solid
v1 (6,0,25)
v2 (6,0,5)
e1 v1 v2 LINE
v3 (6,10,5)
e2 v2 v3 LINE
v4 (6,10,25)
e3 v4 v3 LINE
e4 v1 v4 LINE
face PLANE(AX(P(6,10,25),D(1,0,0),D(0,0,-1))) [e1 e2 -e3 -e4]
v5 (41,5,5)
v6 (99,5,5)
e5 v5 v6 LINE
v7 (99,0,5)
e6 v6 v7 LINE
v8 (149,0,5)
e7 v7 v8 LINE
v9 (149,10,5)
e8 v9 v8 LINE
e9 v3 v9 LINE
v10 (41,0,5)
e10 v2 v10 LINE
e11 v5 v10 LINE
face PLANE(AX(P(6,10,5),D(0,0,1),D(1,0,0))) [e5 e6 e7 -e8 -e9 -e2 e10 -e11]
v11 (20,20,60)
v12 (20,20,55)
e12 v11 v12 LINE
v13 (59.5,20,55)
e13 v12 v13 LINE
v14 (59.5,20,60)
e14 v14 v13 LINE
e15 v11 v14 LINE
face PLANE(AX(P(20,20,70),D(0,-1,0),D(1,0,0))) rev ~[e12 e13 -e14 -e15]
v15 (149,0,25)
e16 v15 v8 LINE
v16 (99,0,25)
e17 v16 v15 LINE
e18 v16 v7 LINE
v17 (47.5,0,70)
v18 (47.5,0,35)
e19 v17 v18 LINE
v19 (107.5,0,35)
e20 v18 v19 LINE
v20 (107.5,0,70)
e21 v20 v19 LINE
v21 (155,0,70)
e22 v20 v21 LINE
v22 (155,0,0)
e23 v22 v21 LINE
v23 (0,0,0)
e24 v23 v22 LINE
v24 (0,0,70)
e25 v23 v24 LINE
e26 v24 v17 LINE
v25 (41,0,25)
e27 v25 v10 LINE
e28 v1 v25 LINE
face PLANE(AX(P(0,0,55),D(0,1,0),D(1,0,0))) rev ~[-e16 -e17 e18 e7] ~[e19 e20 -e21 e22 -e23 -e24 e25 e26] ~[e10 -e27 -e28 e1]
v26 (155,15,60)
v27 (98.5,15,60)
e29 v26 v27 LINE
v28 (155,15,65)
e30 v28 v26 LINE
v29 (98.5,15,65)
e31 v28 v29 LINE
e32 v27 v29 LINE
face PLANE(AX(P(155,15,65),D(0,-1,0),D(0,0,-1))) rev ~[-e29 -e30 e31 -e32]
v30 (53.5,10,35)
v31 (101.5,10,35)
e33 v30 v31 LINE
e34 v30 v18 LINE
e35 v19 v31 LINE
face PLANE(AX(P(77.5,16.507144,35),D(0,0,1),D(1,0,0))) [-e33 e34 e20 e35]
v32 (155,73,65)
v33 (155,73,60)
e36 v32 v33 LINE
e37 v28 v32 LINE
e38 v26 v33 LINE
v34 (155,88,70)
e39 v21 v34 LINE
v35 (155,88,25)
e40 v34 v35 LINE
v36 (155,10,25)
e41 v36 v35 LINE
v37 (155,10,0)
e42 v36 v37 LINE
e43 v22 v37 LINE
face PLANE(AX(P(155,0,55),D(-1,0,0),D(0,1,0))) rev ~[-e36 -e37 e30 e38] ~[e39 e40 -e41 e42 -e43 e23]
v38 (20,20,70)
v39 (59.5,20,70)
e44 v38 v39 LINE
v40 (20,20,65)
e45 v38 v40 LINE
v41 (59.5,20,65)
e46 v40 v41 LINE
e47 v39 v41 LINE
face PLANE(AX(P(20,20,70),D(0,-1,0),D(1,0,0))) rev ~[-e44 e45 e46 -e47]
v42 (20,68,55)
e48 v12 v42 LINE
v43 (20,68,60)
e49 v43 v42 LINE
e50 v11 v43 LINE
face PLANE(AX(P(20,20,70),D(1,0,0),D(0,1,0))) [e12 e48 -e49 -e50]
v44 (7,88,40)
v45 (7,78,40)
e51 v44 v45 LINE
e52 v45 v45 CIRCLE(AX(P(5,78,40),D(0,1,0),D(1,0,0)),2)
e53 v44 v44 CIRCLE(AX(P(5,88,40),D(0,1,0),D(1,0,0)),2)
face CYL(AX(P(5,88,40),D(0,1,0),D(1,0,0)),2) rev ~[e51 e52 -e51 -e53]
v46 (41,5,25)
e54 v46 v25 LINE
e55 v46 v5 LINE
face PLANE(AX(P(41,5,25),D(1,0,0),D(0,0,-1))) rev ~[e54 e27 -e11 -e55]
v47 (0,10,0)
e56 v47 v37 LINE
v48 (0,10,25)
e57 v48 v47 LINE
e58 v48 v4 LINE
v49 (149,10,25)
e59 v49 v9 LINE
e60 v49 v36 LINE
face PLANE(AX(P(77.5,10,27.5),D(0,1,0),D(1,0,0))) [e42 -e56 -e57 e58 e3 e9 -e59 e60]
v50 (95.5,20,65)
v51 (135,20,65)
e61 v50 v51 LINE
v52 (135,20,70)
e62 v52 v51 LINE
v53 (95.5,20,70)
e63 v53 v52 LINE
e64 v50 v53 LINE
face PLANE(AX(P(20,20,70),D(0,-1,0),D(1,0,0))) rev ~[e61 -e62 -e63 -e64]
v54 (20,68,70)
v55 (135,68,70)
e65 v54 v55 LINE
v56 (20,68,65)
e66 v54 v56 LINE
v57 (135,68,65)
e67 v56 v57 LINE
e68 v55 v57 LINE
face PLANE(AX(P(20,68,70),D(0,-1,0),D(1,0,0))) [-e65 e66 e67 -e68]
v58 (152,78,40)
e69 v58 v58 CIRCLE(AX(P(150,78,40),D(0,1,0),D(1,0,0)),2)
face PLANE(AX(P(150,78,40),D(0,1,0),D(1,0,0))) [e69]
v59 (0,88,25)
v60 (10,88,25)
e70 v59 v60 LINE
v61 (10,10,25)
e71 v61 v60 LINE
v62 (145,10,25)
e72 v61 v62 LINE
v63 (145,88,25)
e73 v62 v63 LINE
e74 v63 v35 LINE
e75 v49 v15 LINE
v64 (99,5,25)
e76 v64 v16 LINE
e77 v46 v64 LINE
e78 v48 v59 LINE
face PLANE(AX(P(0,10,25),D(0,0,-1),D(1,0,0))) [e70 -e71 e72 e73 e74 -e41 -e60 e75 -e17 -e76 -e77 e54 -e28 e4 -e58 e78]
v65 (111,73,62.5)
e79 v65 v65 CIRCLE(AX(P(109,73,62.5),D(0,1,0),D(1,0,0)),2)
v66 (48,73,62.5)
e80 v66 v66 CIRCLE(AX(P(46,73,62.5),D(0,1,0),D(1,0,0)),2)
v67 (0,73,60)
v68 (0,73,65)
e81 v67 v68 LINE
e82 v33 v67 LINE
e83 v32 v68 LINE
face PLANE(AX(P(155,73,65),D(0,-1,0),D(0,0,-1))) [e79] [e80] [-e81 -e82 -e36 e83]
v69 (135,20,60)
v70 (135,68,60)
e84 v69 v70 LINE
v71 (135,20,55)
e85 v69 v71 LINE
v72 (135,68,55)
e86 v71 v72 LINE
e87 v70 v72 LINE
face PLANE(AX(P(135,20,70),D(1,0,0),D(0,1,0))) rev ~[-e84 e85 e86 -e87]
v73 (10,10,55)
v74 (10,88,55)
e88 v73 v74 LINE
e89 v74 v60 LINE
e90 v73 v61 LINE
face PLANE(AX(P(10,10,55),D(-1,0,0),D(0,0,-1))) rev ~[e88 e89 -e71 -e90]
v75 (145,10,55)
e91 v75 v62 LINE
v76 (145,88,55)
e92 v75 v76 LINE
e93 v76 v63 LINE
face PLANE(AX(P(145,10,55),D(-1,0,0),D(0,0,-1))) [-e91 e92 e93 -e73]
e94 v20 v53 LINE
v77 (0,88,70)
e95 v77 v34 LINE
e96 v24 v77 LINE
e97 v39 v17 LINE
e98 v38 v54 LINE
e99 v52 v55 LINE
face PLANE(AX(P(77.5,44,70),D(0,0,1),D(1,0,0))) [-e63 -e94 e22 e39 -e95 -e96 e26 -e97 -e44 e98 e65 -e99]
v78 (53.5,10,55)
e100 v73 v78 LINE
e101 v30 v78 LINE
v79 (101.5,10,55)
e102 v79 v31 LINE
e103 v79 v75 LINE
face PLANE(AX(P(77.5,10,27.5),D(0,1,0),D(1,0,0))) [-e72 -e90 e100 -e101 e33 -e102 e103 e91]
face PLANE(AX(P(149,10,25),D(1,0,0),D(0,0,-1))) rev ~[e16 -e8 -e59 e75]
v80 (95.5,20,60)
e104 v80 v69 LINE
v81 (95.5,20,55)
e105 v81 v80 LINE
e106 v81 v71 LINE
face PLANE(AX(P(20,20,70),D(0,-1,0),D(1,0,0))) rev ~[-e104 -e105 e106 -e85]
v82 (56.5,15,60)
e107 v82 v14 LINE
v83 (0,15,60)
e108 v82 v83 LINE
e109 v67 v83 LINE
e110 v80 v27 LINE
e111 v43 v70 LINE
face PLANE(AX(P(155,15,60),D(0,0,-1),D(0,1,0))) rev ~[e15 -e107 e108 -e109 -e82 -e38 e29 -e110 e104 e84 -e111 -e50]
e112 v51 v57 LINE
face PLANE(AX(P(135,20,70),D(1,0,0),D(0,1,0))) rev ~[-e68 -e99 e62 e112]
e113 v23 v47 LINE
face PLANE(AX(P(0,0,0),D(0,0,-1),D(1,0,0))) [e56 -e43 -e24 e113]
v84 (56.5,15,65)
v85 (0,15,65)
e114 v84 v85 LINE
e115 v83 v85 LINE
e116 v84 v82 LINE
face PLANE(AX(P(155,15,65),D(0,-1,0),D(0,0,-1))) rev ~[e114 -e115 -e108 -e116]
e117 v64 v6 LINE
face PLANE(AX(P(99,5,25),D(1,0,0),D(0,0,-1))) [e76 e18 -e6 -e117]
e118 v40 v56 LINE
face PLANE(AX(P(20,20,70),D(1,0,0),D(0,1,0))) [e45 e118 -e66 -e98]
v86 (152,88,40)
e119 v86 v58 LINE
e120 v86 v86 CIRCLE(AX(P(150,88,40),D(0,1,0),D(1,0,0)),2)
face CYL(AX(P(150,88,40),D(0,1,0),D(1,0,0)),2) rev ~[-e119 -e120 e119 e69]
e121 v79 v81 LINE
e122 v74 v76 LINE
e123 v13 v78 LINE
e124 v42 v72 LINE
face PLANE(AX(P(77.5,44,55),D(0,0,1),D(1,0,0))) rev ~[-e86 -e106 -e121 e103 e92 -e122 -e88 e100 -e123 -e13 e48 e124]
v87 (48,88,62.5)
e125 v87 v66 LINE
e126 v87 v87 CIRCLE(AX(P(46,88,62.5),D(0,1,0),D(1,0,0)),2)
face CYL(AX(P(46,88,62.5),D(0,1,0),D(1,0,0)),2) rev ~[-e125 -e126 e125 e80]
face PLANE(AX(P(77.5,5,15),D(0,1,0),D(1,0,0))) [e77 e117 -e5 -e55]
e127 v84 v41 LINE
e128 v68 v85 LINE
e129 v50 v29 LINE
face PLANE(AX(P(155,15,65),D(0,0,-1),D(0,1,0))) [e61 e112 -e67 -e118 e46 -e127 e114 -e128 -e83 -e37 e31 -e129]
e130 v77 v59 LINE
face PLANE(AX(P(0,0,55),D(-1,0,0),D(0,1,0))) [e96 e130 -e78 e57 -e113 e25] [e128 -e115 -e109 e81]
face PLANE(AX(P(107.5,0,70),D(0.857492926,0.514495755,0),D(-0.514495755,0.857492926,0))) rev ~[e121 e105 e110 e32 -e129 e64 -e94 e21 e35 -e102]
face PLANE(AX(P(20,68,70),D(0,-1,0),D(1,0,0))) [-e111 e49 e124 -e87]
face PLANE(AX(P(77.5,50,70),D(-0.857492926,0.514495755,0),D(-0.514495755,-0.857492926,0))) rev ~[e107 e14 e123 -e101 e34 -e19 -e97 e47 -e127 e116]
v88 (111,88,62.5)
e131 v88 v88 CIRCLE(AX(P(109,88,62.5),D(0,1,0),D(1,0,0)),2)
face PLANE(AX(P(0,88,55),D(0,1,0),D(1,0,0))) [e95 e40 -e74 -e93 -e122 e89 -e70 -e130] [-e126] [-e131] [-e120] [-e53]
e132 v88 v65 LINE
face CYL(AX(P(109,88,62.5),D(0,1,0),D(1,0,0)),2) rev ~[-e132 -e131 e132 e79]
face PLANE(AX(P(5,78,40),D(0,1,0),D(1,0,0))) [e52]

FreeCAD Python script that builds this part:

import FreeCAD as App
import Part
import Sketcher
Q = App.Units.Quantity

doc = App.newDocument("Part")
body = doc.addObject("PartDesign::Body", "Body")

# Sketch on XZ plane
sketch1 = doc.addObject("Sketcher::SketchObject", "Sketch")
body.addObject(sketch1)
sketch1.AttachmentSupport = (doc.XZ_Plane, [""])
sketch1.MapMode = "FlatFace"
sketch1.addGeometry([
    Part.LineSegment(App.Vector(0, 0, 0), App.Vector(0, 55, 0)),
    Part.LineSegment(App.Vector(0, 55, 0), App.Vector(155, 55, 0)),
    Part.LineSegment(App.Vector(155, 55, 0), App.Vector(155, 0, 0)),
    Part.LineSegment(App.Vector(155, 0, 0), App.Vector(0, 0, 0)),
], False)
sketch1.addConstraint([
    Sketcher.Constraint("Coincident", 0, 2, 1, 1),
    Sketcher.Constraint("Coincident", 1, 2, 2, 1),
    Sketcher.Constraint("Coincident", 2, 2, 3, 1),
    Sketcher.Constraint("Coincident", 3, 2, 0, 1),
    Sketcher.Constraint("Vertical", 0),
    Sketcher.Constraint("Horizontal", 1),
    Sketcher.Constraint("Vertical", 2),
    Sketcher.Constraint("Horizontal", 3),
    Sketcher.Constraint("Coincident", 3, 2, -1, 1),
    Sketcher.Constraint("DistanceX", 1, 1, 1, 2, Q("155 mm")),
    Sketcher.Constraint("DistanceY", 0, 1, 0, 2, Q("55 mm")),
])
pad1 = doc.addObject("PartDesign::Pad", "Pad")
body.addObject(pad1)
pad1.Profile = sketch1
pad1.Length = 10
pad1.Reversed = True

# Sketch on XZ plane
sketch2 = doc.addObject("Sketcher::SketchObject", "Sketch001")
body.addObject(sketch2)
sketch2.AttachmentSupport = (doc.XZ_Plane, [""])
sketch2.MapMode = "FlatFace"
sketch2.AttachmentOffset = App.Placement(App.Vector(0, 0, -10), App.Rotation())
sketch2.addGeometry([
    Part.LineSegment(App.Vector(6, 5, 0), App.Vector(6, 25, 0)),
    Part.LineSegment(App.Vector(6, 25, 0), App.Vector(149, 25, 0)),
    Part.LineSegment(App.Vector(149, 25, 0), App.Vector(149, 5, 0)),
    Part.LineSegment(App.Vector(149, 5, 0), App.Vector(6, 5, 0)),
], False)
sketch2.addConstraint([
    Sketcher.Constraint("Coincident", 0, 2, 1, 1),
    Sketcher.Constraint("Coincident", 1, 2, 2, 1),
    Sketcher.Constraint("Coincident", 2, 2, 3, 1),
    Sketcher.Constraint("Coincident", 3, 2, 0, 1),
    Sketcher.Constraint("Vertical", 0),
    Sketcher.Constraint("Horizontal", 1),
    Sketcher.Constraint("Vertical", 2),
    Sketcher.Constraint("Horizontal", 3),
    Sketcher.Constraint("DistanceX", 1, 1, 1, 2, Q("143 mm")),
    Sketcher.Constraint("DistanceY", 0, 1, 0, 2, Q("20 mm")),
    Sketcher.Constraint("DistanceX", -1, 1, 0, 2, Q("6 mm")),
    Sketcher.Constraint("DistanceY", -1, 1, 0, 2, Q("25 mm")),
])
pocket1 = doc.addObject("PartDesign::Pocket", "Pocket")
body.addObject(pocket1)
pocket1.Profile = sketch2
pocket1.Length = 5
pocket1.Reversed = True

# Sketch on XZ plane
sketch3 = doc.addObject("Sketcher::SketchObject", "Sketch002")
body.addObject(sketch3)
sketch3.AttachmentSupport = (doc.XZ_Plane, [""])
sketch3.MapMode = "FlatFace"
sketch3.AttachmentOffset = App.Placement(App.Vector(0, 0, -10), App.Rotation())
sketch3.addGeometry([
    Part.LineSegment(App.Vector(0, 25, 0), App.Vector(0, 55, 0)),  # 0
    Part.LineSegment(App.Vector(0, 55, 0), App.Vector(10, 55, 0)),  # 1
    Part.LineSegment(App.Vector(10, 55, 0), App.Vector(10, 25, 0)),  # 2
    Part.LineSegment(App.Vector(10, 25, 0), App.Vector(0, 25, 0)),  # 3
    Part.LineSegment(App.Vector(145, 25, 0), App.Vector(145, 55, 0)),  # 4
    Part.LineSegment(App.Vector(145, 55, 0), App.Vector(155, 55, 0)),  # 5
    Part.LineSegment(App.Vector(155, 55, 0), App.Vector(155, 25, 0)),  # 6
    Part.LineSegment(App.Vector(155, 25, 0), App.Vector(145, 25, 0)),  # 7
], False)
sketch3.addConstraint([
    Sketcher.Constraint("Coincident", 0, 2, 1, 1),
    Sketcher.Constraint("Coincident", 1, 2, 2, 1),
    Sketcher.Constraint("Coincident", 2, 2, 3, 1),
    Sketcher.Constraint("Coincident", 3, 2, 0, 1),
    Sketcher.Constraint("Coincident", 4, 2, 5, 1),
    Sketcher.Constraint("Coincident", 5, 2, 6, 1),
    Sketcher.Constraint("Coincident", 6, 2, 7, 1),
    Sketcher.Constraint("Coincident", 7, 2, 4, 1),
    Sketcher.Constraint("Vertical", 0),
    Sketcher.Constraint("Horizontal", 1),
    Sketcher.Constraint("Vertical", 2),
    Sketcher.Constraint("Horizontal", 3),
    Sketcher.Constraint("Vertical", 4),
    Sketcher.Constraint("Horizontal", 5),
    Sketcher.Constraint("Vertical", 6),
    Sketcher.Constraint("Horizontal", 7),
    Sketcher.Constraint("PointOnObject", 0, 2, -2),
    Sketcher.Constraint("Horizontal", 1, 2, 4, 2),
    Sketcher.Constraint("Horizontal", 3, 2, 6, 2),
    Sketcher.Constraint("Equal", 3, 5),
    Sketcher.Constraint("DistanceX", 1, 1, 1, 2, Q("10 mm")),
    Sketcher.Constraint("DistanceY", 0, 1, 0, 2, Q("30 mm")),
    Sketcher.Constraint("DistanceY", -1, 1, 0, 2, Q("55 mm")),
    Sketcher.Constraint("DistanceX", -1, 1, 4, 2, Q("145 mm")),
])
pad2 = doc.addObject("PartDesign::Pad", "Pad001")
body.addObject(pad2)
pad2.Profile = sketch3
pad2.Length = 78
pad2.Reversed = True

# Sketch on XZ plane
sketch4 = doc.addObject("Sketcher::SketchObject", "Sketch003")
body.addObject(sketch4)
sketch4.AttachmentSupport = (doc.XZ_Plane, [""])
sketch4.MapMode = "FlatFace"
sketch4.AttachmentOffset = App.Placement(App.Vector(0, 0, -5), App.Rotation())
sketch4.addGeometry([
    Part.LineSegment(App.Vector(6, 5, 0), App.Vector(6, 25, 0)),  # 0
    Part.LineSegment(App.Vector(6, 25, 0), App.Vector(41, 25, 0)),  # 1
    Part.LineSegment(App.Vector(41, 25, 0), App.Vector(41, 5, 0)),  # 2
    Part.LineSegment(App.Vector(41, 5, 0), App.Vector(6, 5, 0)),  # 3
    Part.LineSegment(App.Vector(99, 5, 0), App.Vector(99, 25, 0)),  # 4
    Part.LineSegment(App.Vector(99, 25, 0), App.Vector(149, 25, 0)),  # 5
    Part.LineSegment(App.Vector(149, 25, 0), App.Vector(149, 5, 0)),  # 6
    Part.LineSegment(App.Vector(149, 5, 0), App.Vector(99, 5, 0)),  # 7
], False)
sketch4.addConstraint([
    Sketcher.Constraint("Coincident", 0, 2, 1, 1),
    Sketcher.Constraint("Coincident", 1, 2, 2, 1),
    Sketcher.Constraint("Coincident", 2, 2, 3, 1),
    Sketcher.Constraint("Coincident", 3, 2, 0, 1),
    Sketcher.Constraint("Coincident", 4, 2, 5, 1),
    Sketcher.Constraint("Coincident", 5, 2, 6, 1),
    Sketcher.Constraint("Coincident", 6, 2, 7, 1),
    Sketcher.Constraint("Coincident", 7, 2, 4, 1),
    Sketcher.Constraint("Vertical", 0),
    Sketcher.Constraint("Horizontal", 1),
    Sketcher.Constraint("Vertical", 2),
    Sketcher.Constraint("Horizontal", 3),
    Sketcher.Constraint("Vertical", 4),
    Sketcher.Constraint("Horizontal", 5),
    Sketcher.Constraint("Vertical", 6),
    Sketcher.Constraint("Horizontal", 7),
    Sketcher.Constraint("Horizontal", 1, 2, 4, 2),
    Sketcher.Constraint("Horizontal", 3, 2, 6, 2),
    Sketcher.Constraint("DistanceX", 1, 1, 1, 2, Q("35 mm")),
    Sketcher.Constraint("DistanceX", 5, 1, 5, 2, Q("50 mm")),
    Sketcher.Constraint("DistanceY", 0, 1, 0, 2, Q("20 mm")),
    Sketcher.Constraint("DistanceX", -1, 1, 0, 2, Q("6 mm")),
    Sketcher.Constraint("DistanceY", -1, 1, 0, 2, Q("25 mm")),
    Sketcher.Constraint("DistanceX", -1, 1, 4, 2, Q("99 mm")),
])
pocket2 = doc.addObject("PartDesign::Pocket", "Pocket001")
body.addObject(pocket2)
pocket2.Profile = sketch4
pocket2.Length = 78
pocket2.Reversed = True

# Sketch on XY plane
sketch5 = doc.addObject("Sketcher::SketchObject", "Sketch004")
body.addObject(sketch5)
sketch5.AttachmentSupport = (doc.XY_Plane, [""])
sketch5.MapMode = "FlatFace"
sketch5.AttachmentOffset = App.Placement(App.Vector(0, 0, 55), App.Rotation())
sketch5.addGeometry([
    Part.LineSegment(App.Vector(0, 88, 0), App.Vector(0, 0, 0)),
    Part.LineSegment(App.Vector(0, 0, 0), App.Vector(155, 0, 0)),
    Part.LineSegment(App.Vector(155, 0, 0), App.Vector(155, 88, 0)),
    Part.LineSegment(App.Vector(155, 88, 0), App.Vector(0, 88, 0)),
], False)
sketch5.addConstraint([
    Sketcher.Constraint("Coincident", 0, 2, 1, 1),
    Sketcher.Constraint("Coincident", 1, 2, 2, 1),
    Sketcher.Constraint("Coincident", 2, 2, 3, 1),
    Sketcher.Constraint("Coincident", 3, 2, 0, 1),
    Sketcher.Constraint("Vertical", 0),
    Sketcher.Constraint("Horizontal", 1),
    Sketcher.Constraint("Vertical", 2),
    Sketcher.Constraint("Horizontal", 3),
    Sketcher.Constraint("Coincident", 0, 2, -1, 1),
    Sketcher.Constraint("DistanceX", 1, 1, 1, 2, Q("155 mm")),
    Sketcher.Constraint("DistanceY", 0, 2, 0, 1, Q("88 mm")),
])
pad3 = doc.addObject("PartDesign::Pad", "Pad002")
body.addObject(pad3)
pad3.Profile = sketch5
pad3.Length = 15

# Sketch on XY plane
sketch6 = doc.addObject("Sketcher::SketchObject", "Sketch005")
body.addObject(sketch6)
sketch6.AttachmentSupport = (doc.XY_Plane, [""])
sketch6.MapMode = "FlatFace"
sketch6.AttachmentOffset = App.Placement(App.Vector(0, 0, 70), App.Rotation())
sketch6.addGeometry([
    Part.LineSegment(App.Vector(20, 68, 0), App.Vector(20, 20, 0)),
    Part.LineSegment(App.Vector(20, 20, 0), App.Vector(135, 20, 0)),
    Part.LineSegment(App.Vector(135, 20, 0), App.Vector(135, 68, 0)),
    Part.LineSegment(App.Vector(135, 68, 0), App.Vector(20, 68, 0)),
], False)
sketch6.addConstraint([
    Sketcher.Constraint("Coincident", 0, 2, 1, 1),
    Sketcher.Constraint("Coincident", 1, 2, 2, 1),
    Sketcher.Constraint("Coincident", 2, 2, 3, 1),
    Sketcher.Constraint("Coincident", 3, 2, 0, 1),
    Sketcher.Constraint("Vertical", 0),
    Sketcher.Constraint("Horizontal", 1),
    Sketcher.Constraint("Vertical", 2),
    Sketcher.Constraint("Horizontal", 3),
    Sketcher.Constraint("DistanceX", 1, 1, 1, 2, Q("115 mm")),
    Sketcher.Constraint("DistanceY", 0, 2, 0, 1, Q("48 mm")),
    Sketcher.Constraint("DistanceX", -1, 1, 0, 2, Q("20 mm")),
    Sketcher.Constraint("DistanceY", -1, 1, 0, 2, Q("20 mm")),
])
pocket3 = doc.addObject("PartDesign::Pocket", "Pocket002")
body.addObject(pocket3)
pocket3.Profile = sketch6
pocket3.Length = 20

# Sketch on YZ plane
sketch7 = doc.addObject("Sketcher::SketchObject", "Sketch006")
body.addObject(sketch7)
sketch7.AttachmentSupport = (doc.YZ_Plane, [""])
sketch7.MapMode = "FlatFace"
sketch7.AttachmentOffset = App.Placement(App.Vector(0, 0, 155), App.Rotation())
sketch7.addGeometry([
    Part.LineSegment(App.Vector(73, 65, 0), App.Vector(15, 65, 0)),
    Part.LineSegment(App.Vector(15, 65, 0), App.Vector(15, 60, 0)),
    Part.LineSegment(App.Vector(15, 60, 0), App.Vector(73, 60, 0)),
    Part.LineSegment(App.Vector(73, 60, 0), App.Vector(73, 65, 0)),
], False)
sketch7.addConstraint([
    Sketcher.Constraint("Coincident", 0, 2, 1, 1),
    Sketcher.Constraint("Coincident", 1, 2, 2, 1),
    Sketcher.Constraint("Coincident", 2, 2, 3, 1),
    Sketcher.Constraint("Coincident", 3, 2, 0, 1),
    Sketcher.Constraint("Horizontal", 0),
    Sketcher.Constraint("Vertical", 1),
    Sketcher.Constraint("Horizontal", 2),
    Sketcher.Constraint("Vertical", 3),
    Sketcher.Constraint("DistanceX", 0, 2, 0, 1, Q("58 mm")),
    Sketcher.Constraint("DistanceY", 1, 2, 1, 1, Q("5 mm")),
    Sketcher.Constraint("DistanceX", -1, 1, 0, 2, Q("15 mm")),
    Sketcher.Constraint("DistanceY", -1, 1, 0, 2, Q("65 mm")),
])
pocket4 = doc.addObject("PartDesign::Pocket", "Pocket003")
body.addObject(pocket4)
pocket4.Profile = sketch7
pocket4.Length = 200

# Sketch on XY plane
sketch8 = doc.addObject("Sketcher::SketchObject", "Sketch007")
body.addObject(sketch8)
sketch8.AttachmentSupport = (doc.XY_Plane, [""])
sketch8.MapMode = "FlatFace"
sketch8.AttachmentOffset = App.Placement(App.Vector(0, 0, 70), App.Rotation())
sketch8.addGeometry([
    Part.LineSegment(App.Vector(48, 0, 0), App.Vector(108, 0, 0)),
    Part.LineSegment(App.Vector(108, 0, 0), App.Vector(78, 50, 0)),
    Part.LineSegment(App.Vector(78, 50, 0), App.Vector(48, 0, 0)),
], False)
sketch8.addConstraint([
    Sketcher.Constraint("Coincident", 0, 2, 1, 1),
    Sketcher.Constraint("Coincident", 1, 2, 2, 1),
    Sketcher.Constraint("Coincident", 2, 2, 0, 1),
    Sketcher.Constraint("Horizontal", 0),
    Sketcher.Constraint("PointOnObject", 0, 2, -1),
    Sketcher.Constraint("Equal", 1, 2),
    Sketcher.Constraint("DistanceX", 0, 1, 0, 2, Q("60 mm")),
    Sketcher.Constraint("DistanceY", -1, 1, 1, 2, Q("50 mm")),
    Sketcher.Constraint("DistanceX", -1, 1, 0, 2, Q("107.5 mm")),
])
pocket5 = doc.addObject("PartDesign::Pocket", "Pocket004")
body.addObject(pocket5)
pocket5.Profile = sketch8
pocket5.Length = 35

# Sketch on XZ plane
sketch9 = doc.addObject("Sketcher::SketchObject", "Sketch008")
body.addObject(sketch9)
sketch9.AttachmentSupport = (doc.XZ_Plane, [""])
sketch9.MapMode = "FlatFace"
sketch9.AttachmentOffset = App.Placement(App.Vector(0, 0, -88), App.Rotation())
sketch9.addGeometry([
    Part.Circle(App.Vector(150, 40, 0), App.Vector(0, 0, 1), 2),
    Part.Circle(App.Vector(5, 40, 0), App.Vector(0, 0, 1), 2),
], False)
sketch9.addConstraint([
    Sketcher.Constraint("Equal", 0, 1),
    Sketcher.Constraint("Horizontal", 0, 3, 1, 3),
    Sketcher.Constraint("Diameter", 0, Q("4 mm")),
    Sketcher.Constraint("DistanceX", -1, 1, 0, 3, Q("150 mm")),
    Sketcher.Constraint("DistanceY", -1, 1, 0, 3, Q("40 mm")),
    Sketcher.Constraint("DistanceX", -1, 1, 1, 3, Q("5 mm")),
])
pocket6 = doc.addObject("PartDesign::Pocket", "Pocket005")
body.addObject(pocket6)
pocket6.Profile = sketch9
pocket6.Length = 10
pocket6.Reversed = True

# Sketch on XZ plane
sketch10 = doc.addObject("Sketcher::SketchObject", "Sketch009")
body.addObject(sketch10)
sketch10.AttachmentSupport = (doc.XZ_Plane, [""])
sketch10.MapMode = "FlatFace"
sketch10.AttachmentOffset = App.Placement(App.Vector(0, 0, -88), App.Rotation())
sketch10.addGeometry([
    Part.Circle(App.Vector(109, 62.5, 0), App.Vector(0, 0, 1), 2),
    Part.Circle(App.Vector(46, 62.5, 0), App.Vector(0, 0, 1), 2),
], False)
sketch10.addConstraint([
    Sketcher.Constraint("Equal", 0, 1),
    Sketcher.Constraint("Horizontal", 0, 3, 1, 3),
    Sketcher.Constraint("Diameter", 0, Q("4 mm")),
    Sketcher.Constraint("DistanceX", -1, 1, 0, 3, Q("109 mm")),
    Sketcher.Constraint("DistanceX", -1, 1, 1, 3, Q("46 mm")),
    Sketcher.Constraint("DistanceY", -1, 1, 0, 3, Q("62.5 mm")),
])
pocket7 = doc.addObject("PartDesign::Pocket", "Pocket006")
body.addObject(pocket7)
pocket7.Profile = sketch10
pocket7.Length = 20
pocket7.Reversed = True

doc.recompute()
